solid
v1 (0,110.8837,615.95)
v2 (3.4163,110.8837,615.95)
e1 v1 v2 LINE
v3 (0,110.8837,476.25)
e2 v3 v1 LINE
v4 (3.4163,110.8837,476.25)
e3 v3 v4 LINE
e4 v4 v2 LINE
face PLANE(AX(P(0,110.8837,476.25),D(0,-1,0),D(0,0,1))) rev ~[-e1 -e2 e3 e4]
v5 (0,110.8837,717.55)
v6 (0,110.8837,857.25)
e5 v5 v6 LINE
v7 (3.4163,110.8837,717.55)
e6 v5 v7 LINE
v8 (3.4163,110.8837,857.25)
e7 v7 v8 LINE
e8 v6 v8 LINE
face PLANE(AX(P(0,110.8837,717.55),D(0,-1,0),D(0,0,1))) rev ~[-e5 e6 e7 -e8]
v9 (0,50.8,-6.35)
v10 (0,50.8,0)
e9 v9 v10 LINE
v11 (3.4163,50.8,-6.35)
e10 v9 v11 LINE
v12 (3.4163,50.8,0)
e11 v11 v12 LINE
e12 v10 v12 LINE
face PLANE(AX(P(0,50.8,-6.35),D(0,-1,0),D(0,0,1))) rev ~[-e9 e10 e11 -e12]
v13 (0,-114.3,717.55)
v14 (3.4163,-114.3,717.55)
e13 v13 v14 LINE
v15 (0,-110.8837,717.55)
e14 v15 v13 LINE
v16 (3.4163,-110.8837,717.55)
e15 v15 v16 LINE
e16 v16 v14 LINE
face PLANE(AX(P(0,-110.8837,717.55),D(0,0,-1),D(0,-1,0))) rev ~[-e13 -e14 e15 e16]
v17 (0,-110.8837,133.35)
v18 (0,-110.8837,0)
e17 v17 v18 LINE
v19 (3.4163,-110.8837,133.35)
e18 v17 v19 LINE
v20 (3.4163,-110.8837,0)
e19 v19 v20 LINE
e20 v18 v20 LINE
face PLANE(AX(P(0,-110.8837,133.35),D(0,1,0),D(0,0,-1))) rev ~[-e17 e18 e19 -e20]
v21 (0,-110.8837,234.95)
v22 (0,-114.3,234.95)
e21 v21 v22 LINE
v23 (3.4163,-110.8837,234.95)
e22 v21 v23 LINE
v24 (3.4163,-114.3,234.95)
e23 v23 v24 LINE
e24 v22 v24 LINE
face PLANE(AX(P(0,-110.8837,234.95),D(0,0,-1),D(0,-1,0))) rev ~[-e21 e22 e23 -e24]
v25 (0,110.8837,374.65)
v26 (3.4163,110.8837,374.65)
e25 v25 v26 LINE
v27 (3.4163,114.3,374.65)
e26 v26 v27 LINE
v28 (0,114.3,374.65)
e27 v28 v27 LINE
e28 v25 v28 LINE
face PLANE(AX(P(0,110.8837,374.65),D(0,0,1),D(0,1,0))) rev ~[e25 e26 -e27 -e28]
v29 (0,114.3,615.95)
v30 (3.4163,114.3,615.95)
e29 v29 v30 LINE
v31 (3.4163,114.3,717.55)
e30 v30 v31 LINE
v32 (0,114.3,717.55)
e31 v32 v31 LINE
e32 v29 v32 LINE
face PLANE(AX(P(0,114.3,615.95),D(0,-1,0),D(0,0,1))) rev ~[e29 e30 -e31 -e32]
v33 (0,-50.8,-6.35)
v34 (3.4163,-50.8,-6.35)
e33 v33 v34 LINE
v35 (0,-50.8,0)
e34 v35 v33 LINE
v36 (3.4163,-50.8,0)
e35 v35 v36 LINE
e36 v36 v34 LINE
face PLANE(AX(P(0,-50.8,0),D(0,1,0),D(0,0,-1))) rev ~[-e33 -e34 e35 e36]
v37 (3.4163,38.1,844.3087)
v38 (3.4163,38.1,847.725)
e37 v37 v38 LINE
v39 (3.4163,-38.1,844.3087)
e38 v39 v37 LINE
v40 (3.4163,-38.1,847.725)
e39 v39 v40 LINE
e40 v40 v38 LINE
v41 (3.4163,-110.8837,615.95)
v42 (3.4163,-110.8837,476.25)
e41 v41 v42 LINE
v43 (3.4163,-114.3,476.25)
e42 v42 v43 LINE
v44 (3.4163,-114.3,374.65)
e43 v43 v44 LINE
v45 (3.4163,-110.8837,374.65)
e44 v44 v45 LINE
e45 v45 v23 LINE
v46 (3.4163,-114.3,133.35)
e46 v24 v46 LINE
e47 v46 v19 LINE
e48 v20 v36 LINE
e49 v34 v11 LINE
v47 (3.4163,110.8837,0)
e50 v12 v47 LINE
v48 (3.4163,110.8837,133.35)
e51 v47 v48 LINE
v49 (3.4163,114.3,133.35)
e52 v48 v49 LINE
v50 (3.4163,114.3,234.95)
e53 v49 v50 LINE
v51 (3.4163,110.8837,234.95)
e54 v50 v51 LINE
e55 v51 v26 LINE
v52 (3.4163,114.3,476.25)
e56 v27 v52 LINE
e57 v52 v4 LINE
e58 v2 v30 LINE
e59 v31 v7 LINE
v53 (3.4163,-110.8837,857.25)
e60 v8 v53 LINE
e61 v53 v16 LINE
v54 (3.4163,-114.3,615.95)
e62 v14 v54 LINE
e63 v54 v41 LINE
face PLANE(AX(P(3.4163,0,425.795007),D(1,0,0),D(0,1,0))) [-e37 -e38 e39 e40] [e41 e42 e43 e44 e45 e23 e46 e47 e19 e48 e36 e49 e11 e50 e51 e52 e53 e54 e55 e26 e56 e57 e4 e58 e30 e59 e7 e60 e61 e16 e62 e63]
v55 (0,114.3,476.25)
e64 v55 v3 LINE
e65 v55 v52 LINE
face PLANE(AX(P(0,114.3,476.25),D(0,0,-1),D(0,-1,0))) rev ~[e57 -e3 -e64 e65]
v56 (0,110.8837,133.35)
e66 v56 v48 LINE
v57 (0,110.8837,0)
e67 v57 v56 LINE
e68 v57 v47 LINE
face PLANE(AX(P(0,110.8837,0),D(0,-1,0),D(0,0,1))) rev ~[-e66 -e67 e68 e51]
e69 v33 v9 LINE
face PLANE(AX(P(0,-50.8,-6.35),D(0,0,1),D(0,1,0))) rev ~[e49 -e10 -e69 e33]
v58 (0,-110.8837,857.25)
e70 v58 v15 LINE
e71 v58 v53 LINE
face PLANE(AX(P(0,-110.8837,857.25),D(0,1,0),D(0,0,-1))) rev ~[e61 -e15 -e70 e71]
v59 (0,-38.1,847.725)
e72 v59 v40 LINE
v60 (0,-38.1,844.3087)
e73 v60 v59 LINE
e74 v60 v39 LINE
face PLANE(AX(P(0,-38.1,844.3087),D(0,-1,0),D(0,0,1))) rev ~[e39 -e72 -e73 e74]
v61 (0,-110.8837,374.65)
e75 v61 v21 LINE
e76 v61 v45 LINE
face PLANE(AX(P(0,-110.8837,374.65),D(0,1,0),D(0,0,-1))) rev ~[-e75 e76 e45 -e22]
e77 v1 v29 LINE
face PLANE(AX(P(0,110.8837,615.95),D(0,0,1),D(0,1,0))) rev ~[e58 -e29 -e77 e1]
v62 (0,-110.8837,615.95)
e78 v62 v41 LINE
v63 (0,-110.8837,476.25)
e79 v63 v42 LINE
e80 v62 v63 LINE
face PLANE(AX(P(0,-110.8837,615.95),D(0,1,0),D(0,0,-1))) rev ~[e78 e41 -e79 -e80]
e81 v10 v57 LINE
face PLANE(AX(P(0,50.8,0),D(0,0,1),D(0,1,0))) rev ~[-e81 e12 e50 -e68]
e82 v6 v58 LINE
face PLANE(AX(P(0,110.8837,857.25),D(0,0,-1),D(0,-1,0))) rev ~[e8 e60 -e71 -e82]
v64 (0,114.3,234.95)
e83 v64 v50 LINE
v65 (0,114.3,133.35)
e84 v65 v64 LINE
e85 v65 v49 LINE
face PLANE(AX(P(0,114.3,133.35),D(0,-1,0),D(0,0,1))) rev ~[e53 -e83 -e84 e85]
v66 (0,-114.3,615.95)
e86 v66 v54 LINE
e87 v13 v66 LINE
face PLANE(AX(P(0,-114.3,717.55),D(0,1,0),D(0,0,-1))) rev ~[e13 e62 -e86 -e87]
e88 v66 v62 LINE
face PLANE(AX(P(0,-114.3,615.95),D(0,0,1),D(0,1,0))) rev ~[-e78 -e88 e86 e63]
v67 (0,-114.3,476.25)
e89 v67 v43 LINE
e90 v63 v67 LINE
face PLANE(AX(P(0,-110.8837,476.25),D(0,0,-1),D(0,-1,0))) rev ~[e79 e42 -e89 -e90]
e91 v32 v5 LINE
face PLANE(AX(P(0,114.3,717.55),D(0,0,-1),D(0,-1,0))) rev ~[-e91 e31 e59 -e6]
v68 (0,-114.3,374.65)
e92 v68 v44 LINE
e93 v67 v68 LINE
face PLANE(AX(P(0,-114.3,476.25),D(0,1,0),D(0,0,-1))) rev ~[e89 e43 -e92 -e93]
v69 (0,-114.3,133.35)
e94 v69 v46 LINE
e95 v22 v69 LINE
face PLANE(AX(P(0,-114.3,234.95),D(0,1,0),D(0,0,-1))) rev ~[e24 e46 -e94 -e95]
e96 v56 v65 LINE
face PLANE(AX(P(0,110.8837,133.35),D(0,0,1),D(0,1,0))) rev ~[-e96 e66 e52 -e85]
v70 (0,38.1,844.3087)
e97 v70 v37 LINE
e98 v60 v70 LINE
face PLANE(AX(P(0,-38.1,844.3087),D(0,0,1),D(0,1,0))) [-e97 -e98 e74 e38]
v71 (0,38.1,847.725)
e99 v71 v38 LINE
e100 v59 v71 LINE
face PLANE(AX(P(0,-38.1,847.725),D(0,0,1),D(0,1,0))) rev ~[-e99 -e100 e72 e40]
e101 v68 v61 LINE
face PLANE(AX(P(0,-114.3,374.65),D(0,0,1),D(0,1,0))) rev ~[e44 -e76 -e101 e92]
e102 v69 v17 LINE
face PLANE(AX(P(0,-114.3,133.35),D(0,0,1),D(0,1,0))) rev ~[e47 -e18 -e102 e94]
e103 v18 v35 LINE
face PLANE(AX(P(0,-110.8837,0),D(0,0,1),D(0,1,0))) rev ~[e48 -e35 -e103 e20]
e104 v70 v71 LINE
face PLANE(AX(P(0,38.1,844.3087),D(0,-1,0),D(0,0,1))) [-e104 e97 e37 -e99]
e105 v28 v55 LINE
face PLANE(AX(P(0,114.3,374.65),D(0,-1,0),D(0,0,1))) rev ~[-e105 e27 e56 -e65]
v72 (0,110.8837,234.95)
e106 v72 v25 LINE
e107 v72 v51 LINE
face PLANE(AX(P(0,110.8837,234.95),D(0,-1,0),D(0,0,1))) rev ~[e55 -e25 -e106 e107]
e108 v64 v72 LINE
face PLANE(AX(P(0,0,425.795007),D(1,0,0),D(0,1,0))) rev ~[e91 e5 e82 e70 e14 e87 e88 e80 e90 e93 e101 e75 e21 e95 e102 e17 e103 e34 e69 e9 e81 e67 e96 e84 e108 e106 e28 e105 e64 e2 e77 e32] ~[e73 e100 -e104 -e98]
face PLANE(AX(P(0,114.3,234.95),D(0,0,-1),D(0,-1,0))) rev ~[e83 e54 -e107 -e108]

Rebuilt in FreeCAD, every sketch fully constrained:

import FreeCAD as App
import Part
import Sketcher
Q = App.Units.Quantity


def add_polygon(sketch, points):
    """Adds a closed chain of lines whose ends are joined by coincident constraints."""
    first, n = sketch.GeometryCount, len(points)
    for a, b in zip(points, points[1:] + points[:1]):
        sketch.addGeometry(Part.LineSegment(App.Vector(*a, 0), App.Vector(*b, 0)), False)
    for i in range(n):
        sketch.addConstraint(Sketcher.Constraint("Coincident", first + i, 2, first + (i + 1) % n, 1))

doc = App.newDocument("Part")
params = doc.addObject("Spreadsheet::Sheet", "Params")
for row, (alias, value) in enumerate([
    ("sketch1_width", "4 in"),
    ("sketch1_width2", "3 in"),
    ("sketch1_height", "5.5 in"),
    ("sketch1_height2", "0.25 in"),
    ("sketch1_height3", "5.25 in"),
    ("pad1_length", "0.1345 in"),
], start=1):
    params.set(f"A{row}", alias)
    params.set(f"B{row}", "=" + value)
    params.setAlias(f"B{row}", alias)

body = doc.addObject("PartDesign::Body", "Body")

# Sketch on YZ plane
sketch1 = doc.addObject("Sketcher::SketchObject", "Sketch")
body.addObject(sketch1)
sketch1.AttachmentSupport = (doc.YZ_Plane, [""])
sketch1.MapMode = "FlatFace"
add_polygon(sketch1, [(-50.8, 0), (-50.8, -6.3), (50.8, -6.3), (50.8, 0), (110.9, 0), (110.9, 133.3), (114.3, 133.3), (114.3, 234.9), (110.9, 234.9), (110.9, 374.6), (114.3, 374.6), (114.3, 476.2), (110.9, 476.2), (110.9, 616), (114.3, 616), (114.3, 717.5), (110.9, 717.5), (110.9, 857.2), (-110.9, 857.2), (-110.9, 717.5), (-114.3, 717.5), (-114.3, 616), (-110.9, 616), (-110.9, 476.2), (-114.3, 476.2), (-114.3, 374.6), (-110.9, 374.6), (-110.9, 234.9), (-114.3, 234.9), (-114.3, 133.3), (-110.9, 133.3), (-110.9, 0)])  # lines 0-31
add_polygon(sketch1, [(38.1, 844.3), (-38.1, 844.3), (-38.1, 847.7), (38.1, 847.7)])  # lines 32-35
sketch1.addConstraint([
    Sketcher.Constraint("Vertical", 0),
    Sketcher.Constraint("Horizontal", 1),
    Sketcher.Constraint("Vertical", 2),
    Sketcher.Constraint("Horizontal", 3),
    Sketcher.Constraint("Vertical", 4),
    Sketcher.Constraint("Horizontal", 5),
    Sketcher.Constraint("Vertical", 6),
    Sketcher.Constraint("Horizontal", 7),
    Sketcher.Constraint("Vertical", 8),
    Sketcher.Constraint("Horizontal", 9),
    Sketcher.Constraint("Vertical", 10),
    Sketcher.Constraint("Horizontal", 11),
    Sketcher.Constraint("Vertical", 12),
    Sketcher.Constraint("Horizontal", 13),
    Sketcher.Constraint("Vertical", 14),
    Sketcher.Constraint("Horizontal", 15),
    Sketcher.Constraint("Vertical", 16),
    Sketcher.Constraint("Horizontal", 17),
    Sketcher.Constraint("Vertical", 18),
    Sketcher.Constraint("Horizontal", 19),
    Sketcher.Constraint("Vertical", 20),
    Sketcher.Constraint("Horizontal", 21),
    Sketcher.Constraint("Vertical", 22),
    Sketcher.Constraint("Horizontal", 23),
    Sketcher.Constraint("Vertical", 24),
    Sketcher.Constraint("Horizontal", 25),
    Sketcher.Constraint("Vertical", 26),
    Sketcher.Constraint("Horizontal", 27),
    Sketcher.Constraint("Vertical", 28),
    Sketcher.Constraint("Horizontal", 29),
    Sketcher.Constraint("Vertical", 30),
    Sketcher.Constraint("Horizontal", 31),
    Sketcher.Constraint("Horizontal", 32),
    Sketcher.Constraint("Vertical", 33),
    Sketcher.Constraint("Horizontal", 34),
    Sketcher.Constraint("Vertical", 35),
    Sketcher.Constraint("Symmetric", 3, 2, 30, 2, -1, 1),
    Sketcher.Constraint("Symmetric", 15, 2, 18, 2, -2),
    Sketcher.Constraint("Symmetric", 13, 2, 20, 2, -2),
    Sketcher.Constraint("Symmetric", 11, 2, 22, 2, -2),
    Sketcher.Constraint("Symmetric", 9, 2, 24, 2, -2),
    Sketcher.Constraint("Symmetric", 7, 2, 26, 2, -2),
    Sketcher.Constraint("Symmetric", 5, 2, 28, 2, -2),
    Sketcher.Constraint("Symmetric", 2, 2, 31, 2, -2),
    Sketcher.Constraint("Vertical", 4, 2, 7, 2),
    Sketcher.Constraint("Vertical", 6, 2, 9, 2),
    Sketcher.Constraint("Vertical", 8, 2, 11, 2),
    Sketcher.Constraint("Vertical", 10, 2, 13, 2),
    Sketcher.Constraint("Vertical", 12, 2, 15, 2),
    Sketcher.Constraint("Equal", 1, 6),
    Sketcher.Constraint("Equal", 6, 10),
    Sketcher.Constraint("Equal", 8, 12),
    Sketcher.Constraint("Equal", 10, 14),
    Sketcher.Constraint("Equal", 12, 16),
    Sketcher.Constraint("Equal", 29, 33),
    Sketcher.Constraint("DistanceX", 1, 1, 1, 2, Q("4 in")),
    Sketcher.Constraint("DistanceX", 32, 2, 32, 1, Q("3 in")),
    Sketcher.Constraint("DistanceY", 8, 1, 8, 2, Q("5.5 in")),
    Sketcher.Constraint("DistanceX", 19, 2, 14, 2, Q("9 in")),
    Sketcher.Constraint("DistanceX", 19, 2, 32, 2, Q("3 in")),
    Sketcher.Constraint("DistanceY", 0, 2, 0, 1, Q("0.25 in")),
    Sketcher.Constraint("DistanceY", 4, 1, 4, 2, Q("5.25 in")),
    Sketcher.Constraint("DistanceX", 17, 2, 17, 1, Q("8.731 in")),
    Sketcher.Constraint("DistanceY", -1, 1, 33, 2, Q("33.375 in")),
])
sketch1.setExpression("Constraints[91]", "Params.sketch1_width")
sketch1.setExpression("Constraints[92]", "Params.sketch1_width2")
sketch1.setExpression("Constraints[93]", "Params.sketch1_height")
sketch1.setExpression("Constraints[96]", "Params.sketch1_height2")
sketch1.setExpression("Constraints[97]", "Params.sketch1_height3")
pad1 = doc.addObject("PartDesign::Pad", "Pad")
body.addObject(pad1)
pad1.Profile = sketch1
pad1.setExpression("Length", "Params.pad1_length")

doc.recompute()
